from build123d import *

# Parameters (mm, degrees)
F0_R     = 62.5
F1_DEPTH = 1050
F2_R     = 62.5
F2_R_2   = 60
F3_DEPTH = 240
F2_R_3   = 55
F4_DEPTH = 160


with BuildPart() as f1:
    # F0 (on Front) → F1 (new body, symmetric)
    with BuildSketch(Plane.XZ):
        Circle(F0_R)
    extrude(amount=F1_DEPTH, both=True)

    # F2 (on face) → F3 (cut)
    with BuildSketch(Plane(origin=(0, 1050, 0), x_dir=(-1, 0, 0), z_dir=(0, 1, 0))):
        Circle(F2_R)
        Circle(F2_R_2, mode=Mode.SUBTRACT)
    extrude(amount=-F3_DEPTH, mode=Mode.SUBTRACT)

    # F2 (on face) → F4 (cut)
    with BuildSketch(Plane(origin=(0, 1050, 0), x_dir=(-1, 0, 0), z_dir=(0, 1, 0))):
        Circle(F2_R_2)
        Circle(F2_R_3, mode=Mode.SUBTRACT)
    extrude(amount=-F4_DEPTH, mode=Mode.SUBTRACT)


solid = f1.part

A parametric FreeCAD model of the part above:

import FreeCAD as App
import Part
import Sketcher
from FreeCAD import Vector

doc = App.newDocument("Part")
body = doc.addObject("PartDesign::Body", "Body")

# Sketch on XZ plane
sketch1 = body.newObject("Sketcher::SketchObject", "Sketch")
sketch1.AttachmentSupport = (doc.getObject("XZ_Plane"), [""])
sketch1.MapMode = "FlatFace"
sketch1.addGeometry(Part.Circle(Vector(0, 0, 0), Vector(0, 0, 1), 62), False)
sketch1.addConstraint([
    Sketcher.Constraint("Coincident", 0, 3, -1, 1),
    Sketcher.Constraint("Diameter", 0, 125.0),
])
pad1 = body.newObject("PartDesign::Pad", "Pad")
pad1.Profile = sketch1
pad1.Length = 2100
pad1.Midplane = True

# Sketch on XZ plane
sketch2 = body.newObject("Sketcher::SketchObject", "Sketch001")
sketch2.AttachmentSupport = (doc.getObject("XZ_Plane"), [""])
sketch2.MapMode = "FlatFace"
sketch2.AttachmentOffset = App.Placement(Vector(0, 0, -1050), App.Rotation())
sketch2.addGeometry([
    Part.Circle(Vector(0, 0, 0), Vector(0, 0, 1), 62),
    Part.Circle(Vector(0, 0, 0), Vector(0, 0, 1), 60),
], False)
sketch2.addConstraint([
    Sketcher.Constraint("Coincident", 0, 3, -1, 1),
    Sketcher.Constraint("Coincident", 1, 3, -1, 1),
    Sketcher.Constraint("Diameter", 0, 125.0),
    Sketcher.Constraint("Diameter", 1, 120.0),
])
pocket1 = body.newObject("PartDesign::Pocket", "Pocket")
pocket1.Profile = sketch2
pocket1.Length = 240
pocket1.Reversed = True

# Sketch on XZ plane
sketch3 = body.newObject("Sketcher::SketchObject", "Sketch002")
sketch3.AttachmentSupport = (doc.getObject("XZ_Plane"), [""])
sketch3.MapMode = "FlatFace"
sketch3.AttachmentOffset = App.Placement(Vector(0, 0, -1050), App.Rotation())
sketch3.addGeometry([
    Part.Circle(Vector(0, 0, 0), Vector(0, 0, 1), 60),
    Part.Circle(Vector(0, 0, 0), Vector(0, 0, 1), 55),
], False)
sketch3.addConstraint([
    Sketcher.Constraint("Coincident", 0, 3, -1, 1),
    Sketcher.Constraint("Coincident", 1, 3, -1, 1),
    Sketcher.Constraint("Diameter", 0, 120.0),
    Sketcher.Constraint("Diameter", 1, 110.0),
])
pocket2 = body.newObject("PartDesign::Pocket", "Pocket001")
pocket2.Profile = sketch3
pocket2.Length = 160
pocket2.Reversed = True

doc.recompute()
